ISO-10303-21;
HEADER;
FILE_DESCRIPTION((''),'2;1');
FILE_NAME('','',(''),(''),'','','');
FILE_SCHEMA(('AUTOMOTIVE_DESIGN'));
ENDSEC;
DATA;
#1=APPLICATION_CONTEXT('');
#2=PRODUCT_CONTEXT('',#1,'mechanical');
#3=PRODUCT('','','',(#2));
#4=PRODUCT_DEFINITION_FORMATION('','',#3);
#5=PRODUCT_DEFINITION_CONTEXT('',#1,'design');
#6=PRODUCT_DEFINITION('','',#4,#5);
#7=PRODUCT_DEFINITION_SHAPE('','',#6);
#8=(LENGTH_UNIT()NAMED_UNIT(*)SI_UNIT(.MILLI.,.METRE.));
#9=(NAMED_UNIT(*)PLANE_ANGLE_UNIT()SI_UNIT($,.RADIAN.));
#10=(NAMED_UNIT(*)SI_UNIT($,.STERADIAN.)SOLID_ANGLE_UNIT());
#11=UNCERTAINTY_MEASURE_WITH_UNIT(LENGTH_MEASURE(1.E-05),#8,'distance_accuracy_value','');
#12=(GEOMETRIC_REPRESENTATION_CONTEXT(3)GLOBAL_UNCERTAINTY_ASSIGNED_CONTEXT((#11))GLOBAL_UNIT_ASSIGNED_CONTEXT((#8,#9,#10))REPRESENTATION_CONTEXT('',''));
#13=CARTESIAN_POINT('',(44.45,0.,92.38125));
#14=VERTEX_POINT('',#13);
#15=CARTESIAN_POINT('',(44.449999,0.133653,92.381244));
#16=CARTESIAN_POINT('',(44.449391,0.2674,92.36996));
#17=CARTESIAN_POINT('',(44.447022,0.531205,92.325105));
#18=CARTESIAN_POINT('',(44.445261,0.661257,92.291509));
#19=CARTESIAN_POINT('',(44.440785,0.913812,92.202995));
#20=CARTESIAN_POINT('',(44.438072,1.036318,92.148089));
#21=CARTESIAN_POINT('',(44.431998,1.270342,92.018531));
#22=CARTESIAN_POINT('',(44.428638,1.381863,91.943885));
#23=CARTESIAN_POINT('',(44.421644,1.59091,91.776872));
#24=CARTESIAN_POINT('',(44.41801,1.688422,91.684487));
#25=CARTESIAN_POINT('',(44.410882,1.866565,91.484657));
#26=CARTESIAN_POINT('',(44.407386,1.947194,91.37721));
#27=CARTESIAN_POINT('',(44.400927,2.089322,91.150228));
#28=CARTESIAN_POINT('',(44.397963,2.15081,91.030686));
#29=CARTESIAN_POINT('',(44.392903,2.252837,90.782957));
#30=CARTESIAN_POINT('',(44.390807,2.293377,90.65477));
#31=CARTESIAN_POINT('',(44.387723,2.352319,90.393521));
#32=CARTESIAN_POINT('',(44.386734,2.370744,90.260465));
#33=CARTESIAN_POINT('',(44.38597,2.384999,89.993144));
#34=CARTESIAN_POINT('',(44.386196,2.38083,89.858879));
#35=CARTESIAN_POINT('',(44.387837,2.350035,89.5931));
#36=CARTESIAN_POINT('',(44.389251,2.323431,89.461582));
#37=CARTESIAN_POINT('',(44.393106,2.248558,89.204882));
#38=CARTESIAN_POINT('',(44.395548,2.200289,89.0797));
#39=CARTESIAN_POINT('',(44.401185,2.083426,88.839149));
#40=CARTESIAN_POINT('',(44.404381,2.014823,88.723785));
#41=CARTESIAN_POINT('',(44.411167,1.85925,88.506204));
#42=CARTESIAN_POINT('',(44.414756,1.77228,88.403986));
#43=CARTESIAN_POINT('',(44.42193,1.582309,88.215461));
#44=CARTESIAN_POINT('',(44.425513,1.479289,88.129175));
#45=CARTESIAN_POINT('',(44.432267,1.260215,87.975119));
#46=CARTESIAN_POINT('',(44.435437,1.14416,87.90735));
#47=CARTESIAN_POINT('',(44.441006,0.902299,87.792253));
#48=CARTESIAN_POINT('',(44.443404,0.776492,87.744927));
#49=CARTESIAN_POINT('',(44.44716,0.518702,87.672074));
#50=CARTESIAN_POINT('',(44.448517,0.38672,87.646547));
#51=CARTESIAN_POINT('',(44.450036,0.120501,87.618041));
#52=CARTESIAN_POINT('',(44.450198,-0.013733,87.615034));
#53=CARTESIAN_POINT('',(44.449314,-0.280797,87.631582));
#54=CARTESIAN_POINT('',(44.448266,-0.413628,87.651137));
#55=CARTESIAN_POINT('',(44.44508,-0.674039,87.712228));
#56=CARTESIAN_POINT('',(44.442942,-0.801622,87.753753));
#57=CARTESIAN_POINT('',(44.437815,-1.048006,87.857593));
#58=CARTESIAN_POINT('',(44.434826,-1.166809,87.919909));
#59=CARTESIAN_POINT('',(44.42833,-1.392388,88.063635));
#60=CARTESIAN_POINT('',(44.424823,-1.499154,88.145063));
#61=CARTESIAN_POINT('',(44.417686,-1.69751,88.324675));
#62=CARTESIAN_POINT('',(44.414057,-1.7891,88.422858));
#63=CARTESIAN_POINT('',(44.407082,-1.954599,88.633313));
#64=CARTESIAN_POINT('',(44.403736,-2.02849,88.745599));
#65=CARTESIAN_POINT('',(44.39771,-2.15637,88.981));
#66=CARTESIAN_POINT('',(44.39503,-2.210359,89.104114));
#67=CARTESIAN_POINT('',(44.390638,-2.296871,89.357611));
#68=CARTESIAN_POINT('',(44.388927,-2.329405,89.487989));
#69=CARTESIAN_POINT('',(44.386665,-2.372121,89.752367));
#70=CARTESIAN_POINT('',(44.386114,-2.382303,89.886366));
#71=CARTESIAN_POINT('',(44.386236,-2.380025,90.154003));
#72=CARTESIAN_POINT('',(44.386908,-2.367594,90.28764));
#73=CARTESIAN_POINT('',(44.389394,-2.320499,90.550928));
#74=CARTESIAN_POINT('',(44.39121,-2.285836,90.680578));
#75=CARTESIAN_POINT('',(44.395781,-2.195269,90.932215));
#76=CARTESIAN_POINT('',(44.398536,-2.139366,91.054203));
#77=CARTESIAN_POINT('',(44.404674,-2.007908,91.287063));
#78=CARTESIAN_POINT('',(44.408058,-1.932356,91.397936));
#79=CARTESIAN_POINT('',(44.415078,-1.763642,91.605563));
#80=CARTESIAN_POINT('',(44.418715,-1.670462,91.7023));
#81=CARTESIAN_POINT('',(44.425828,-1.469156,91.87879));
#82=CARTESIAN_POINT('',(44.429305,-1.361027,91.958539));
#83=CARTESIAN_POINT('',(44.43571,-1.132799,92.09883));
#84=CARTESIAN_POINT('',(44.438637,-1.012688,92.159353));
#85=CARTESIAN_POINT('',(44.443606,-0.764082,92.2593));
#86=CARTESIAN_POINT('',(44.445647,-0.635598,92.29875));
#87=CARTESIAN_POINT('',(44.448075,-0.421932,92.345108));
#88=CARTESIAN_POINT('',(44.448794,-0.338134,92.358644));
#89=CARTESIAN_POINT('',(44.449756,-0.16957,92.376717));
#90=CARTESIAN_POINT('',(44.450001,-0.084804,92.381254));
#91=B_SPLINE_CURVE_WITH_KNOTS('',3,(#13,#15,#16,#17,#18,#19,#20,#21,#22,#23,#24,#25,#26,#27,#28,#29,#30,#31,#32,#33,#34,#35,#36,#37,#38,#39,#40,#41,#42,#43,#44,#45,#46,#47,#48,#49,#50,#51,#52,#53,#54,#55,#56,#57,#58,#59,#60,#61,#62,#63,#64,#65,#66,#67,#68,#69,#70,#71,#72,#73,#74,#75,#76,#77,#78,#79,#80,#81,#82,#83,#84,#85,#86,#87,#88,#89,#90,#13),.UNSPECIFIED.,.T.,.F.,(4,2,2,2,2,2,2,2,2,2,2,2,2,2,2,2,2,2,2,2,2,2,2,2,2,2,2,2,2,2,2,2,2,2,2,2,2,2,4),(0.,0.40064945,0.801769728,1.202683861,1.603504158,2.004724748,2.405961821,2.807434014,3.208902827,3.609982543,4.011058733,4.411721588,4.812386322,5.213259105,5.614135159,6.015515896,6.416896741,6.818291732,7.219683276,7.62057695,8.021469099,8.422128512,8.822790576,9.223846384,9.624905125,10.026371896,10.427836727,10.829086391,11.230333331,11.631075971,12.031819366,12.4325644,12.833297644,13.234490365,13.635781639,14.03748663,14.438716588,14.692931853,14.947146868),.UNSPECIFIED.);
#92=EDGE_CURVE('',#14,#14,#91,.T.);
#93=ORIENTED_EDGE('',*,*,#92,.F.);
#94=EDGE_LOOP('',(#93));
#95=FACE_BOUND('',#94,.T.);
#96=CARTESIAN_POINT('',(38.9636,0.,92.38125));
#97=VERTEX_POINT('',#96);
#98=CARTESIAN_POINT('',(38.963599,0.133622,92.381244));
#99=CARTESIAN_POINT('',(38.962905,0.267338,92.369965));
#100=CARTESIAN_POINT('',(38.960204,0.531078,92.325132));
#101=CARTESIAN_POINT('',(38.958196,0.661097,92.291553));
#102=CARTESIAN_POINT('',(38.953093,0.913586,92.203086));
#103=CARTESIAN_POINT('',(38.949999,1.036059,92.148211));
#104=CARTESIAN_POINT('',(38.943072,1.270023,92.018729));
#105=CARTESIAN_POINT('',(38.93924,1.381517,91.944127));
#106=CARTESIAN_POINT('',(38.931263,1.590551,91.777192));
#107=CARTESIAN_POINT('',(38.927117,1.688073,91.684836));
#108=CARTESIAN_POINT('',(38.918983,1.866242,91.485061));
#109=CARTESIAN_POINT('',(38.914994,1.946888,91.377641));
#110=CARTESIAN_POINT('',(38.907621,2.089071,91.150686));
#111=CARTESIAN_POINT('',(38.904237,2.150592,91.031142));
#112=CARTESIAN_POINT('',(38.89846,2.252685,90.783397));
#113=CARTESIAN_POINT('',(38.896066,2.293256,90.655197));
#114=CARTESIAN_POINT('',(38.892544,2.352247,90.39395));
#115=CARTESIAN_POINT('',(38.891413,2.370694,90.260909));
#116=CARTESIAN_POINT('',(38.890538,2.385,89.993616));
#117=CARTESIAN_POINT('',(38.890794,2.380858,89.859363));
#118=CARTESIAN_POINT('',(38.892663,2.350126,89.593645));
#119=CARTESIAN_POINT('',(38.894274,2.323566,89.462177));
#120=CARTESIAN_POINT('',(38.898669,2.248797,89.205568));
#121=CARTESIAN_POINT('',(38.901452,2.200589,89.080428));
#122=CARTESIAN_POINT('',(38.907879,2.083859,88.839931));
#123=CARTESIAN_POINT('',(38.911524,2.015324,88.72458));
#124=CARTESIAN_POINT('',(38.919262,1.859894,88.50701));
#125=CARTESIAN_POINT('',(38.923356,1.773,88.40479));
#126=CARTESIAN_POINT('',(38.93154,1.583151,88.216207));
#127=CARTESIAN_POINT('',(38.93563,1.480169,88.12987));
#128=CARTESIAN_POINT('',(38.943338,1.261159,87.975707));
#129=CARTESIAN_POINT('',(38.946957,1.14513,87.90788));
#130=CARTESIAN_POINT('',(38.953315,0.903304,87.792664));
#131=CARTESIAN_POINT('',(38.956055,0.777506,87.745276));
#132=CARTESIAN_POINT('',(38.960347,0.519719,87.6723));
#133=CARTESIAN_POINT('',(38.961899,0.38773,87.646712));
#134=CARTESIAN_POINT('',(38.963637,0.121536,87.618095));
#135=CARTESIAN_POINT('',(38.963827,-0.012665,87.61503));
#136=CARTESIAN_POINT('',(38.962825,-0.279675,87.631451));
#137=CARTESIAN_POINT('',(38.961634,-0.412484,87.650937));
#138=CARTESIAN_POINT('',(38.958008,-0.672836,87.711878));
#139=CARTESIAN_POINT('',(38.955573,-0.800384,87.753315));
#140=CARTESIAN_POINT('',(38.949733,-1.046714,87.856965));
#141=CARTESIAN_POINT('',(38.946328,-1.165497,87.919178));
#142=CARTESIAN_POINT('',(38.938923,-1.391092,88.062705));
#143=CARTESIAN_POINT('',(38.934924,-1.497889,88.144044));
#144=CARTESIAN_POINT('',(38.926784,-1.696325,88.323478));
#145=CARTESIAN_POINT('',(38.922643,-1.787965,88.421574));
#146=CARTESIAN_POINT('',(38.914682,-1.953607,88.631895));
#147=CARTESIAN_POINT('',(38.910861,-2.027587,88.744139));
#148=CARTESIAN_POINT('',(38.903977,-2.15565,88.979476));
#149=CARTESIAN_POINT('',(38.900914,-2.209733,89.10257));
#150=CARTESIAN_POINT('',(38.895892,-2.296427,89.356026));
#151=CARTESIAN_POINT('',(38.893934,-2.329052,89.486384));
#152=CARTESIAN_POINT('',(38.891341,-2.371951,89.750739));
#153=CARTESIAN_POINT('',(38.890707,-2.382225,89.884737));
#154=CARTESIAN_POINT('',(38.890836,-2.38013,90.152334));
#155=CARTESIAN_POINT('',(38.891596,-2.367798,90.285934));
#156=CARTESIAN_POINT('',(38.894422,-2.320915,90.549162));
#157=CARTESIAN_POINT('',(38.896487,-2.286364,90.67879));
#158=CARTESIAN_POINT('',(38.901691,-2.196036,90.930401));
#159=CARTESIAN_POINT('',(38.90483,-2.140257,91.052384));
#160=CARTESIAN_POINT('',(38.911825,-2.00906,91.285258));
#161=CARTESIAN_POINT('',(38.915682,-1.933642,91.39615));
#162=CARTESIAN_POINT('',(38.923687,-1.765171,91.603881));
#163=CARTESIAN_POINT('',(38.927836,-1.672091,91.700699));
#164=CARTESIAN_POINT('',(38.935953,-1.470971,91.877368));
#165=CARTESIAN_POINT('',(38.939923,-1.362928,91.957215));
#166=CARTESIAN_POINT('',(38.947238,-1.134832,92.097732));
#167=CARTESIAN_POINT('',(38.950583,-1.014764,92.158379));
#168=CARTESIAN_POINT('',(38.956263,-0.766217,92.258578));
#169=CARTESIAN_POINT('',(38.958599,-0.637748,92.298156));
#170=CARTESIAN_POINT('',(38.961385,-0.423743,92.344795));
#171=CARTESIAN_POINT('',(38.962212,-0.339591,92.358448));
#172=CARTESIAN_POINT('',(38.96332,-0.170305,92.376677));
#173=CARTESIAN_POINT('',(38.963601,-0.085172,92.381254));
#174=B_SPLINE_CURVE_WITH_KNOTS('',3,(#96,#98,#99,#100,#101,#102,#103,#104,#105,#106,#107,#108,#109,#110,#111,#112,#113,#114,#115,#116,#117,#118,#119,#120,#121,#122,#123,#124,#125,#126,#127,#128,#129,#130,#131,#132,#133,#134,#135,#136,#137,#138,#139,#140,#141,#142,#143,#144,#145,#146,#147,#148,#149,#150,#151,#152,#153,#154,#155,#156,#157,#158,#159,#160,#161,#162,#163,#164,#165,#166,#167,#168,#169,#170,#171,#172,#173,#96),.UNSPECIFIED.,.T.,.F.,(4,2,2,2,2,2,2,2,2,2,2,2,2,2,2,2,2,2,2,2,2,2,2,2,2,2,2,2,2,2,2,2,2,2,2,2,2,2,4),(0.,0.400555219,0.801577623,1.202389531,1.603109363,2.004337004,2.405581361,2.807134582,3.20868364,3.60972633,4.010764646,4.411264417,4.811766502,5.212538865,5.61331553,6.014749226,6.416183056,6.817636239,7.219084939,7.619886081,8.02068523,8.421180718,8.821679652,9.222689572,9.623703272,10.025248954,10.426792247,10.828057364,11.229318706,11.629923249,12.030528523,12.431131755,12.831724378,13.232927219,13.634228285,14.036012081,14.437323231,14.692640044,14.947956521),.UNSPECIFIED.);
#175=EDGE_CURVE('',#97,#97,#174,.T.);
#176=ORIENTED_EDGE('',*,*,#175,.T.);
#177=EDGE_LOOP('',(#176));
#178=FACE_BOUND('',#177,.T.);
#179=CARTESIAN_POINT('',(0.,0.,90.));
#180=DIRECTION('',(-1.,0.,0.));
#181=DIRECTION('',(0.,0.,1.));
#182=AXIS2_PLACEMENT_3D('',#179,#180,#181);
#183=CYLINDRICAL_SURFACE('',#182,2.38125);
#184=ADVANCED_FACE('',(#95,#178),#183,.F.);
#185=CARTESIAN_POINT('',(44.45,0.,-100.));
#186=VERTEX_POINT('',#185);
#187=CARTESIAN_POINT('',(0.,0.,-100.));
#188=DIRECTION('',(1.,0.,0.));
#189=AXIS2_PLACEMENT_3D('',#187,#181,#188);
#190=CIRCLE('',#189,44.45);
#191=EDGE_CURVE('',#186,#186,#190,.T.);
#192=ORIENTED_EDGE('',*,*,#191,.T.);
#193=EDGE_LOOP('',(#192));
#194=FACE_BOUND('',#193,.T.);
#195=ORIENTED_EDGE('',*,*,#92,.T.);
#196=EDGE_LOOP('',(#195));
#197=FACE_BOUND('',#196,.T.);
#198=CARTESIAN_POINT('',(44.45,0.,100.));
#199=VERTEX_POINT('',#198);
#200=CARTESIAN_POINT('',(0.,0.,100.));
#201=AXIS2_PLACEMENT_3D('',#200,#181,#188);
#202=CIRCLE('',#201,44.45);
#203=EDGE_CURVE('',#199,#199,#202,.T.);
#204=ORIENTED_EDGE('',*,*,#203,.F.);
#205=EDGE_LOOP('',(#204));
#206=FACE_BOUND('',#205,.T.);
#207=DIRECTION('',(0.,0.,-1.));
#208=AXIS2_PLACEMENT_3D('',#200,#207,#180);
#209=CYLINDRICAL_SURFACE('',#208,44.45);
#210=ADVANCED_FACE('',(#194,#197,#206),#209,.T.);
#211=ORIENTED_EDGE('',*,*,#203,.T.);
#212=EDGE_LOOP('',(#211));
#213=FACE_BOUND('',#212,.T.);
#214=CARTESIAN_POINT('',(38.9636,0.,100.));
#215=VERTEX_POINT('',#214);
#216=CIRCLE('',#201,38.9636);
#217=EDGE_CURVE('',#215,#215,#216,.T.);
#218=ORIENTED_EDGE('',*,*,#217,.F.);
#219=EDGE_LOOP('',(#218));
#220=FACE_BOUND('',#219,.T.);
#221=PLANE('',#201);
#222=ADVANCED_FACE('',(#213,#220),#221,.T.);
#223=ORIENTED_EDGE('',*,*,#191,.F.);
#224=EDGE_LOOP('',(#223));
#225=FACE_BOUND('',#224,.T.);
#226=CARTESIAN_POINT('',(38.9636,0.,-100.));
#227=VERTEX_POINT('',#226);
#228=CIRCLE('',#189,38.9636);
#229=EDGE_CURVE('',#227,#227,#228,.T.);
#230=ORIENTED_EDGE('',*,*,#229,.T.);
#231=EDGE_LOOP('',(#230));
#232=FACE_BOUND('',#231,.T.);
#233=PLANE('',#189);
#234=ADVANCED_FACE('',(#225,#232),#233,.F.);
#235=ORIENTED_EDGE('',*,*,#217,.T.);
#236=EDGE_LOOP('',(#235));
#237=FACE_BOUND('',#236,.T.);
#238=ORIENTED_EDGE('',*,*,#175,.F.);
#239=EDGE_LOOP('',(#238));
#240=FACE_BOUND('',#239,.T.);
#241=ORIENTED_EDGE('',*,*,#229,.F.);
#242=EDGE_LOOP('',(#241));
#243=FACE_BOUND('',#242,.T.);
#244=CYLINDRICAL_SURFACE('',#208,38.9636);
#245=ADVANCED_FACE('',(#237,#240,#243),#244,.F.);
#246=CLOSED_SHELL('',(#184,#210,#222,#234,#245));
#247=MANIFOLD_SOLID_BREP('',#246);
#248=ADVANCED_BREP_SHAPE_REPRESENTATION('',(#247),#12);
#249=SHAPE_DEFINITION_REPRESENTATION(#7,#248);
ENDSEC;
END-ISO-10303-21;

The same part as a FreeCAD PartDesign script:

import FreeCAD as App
import Part
import Sketcher
from FreeCAD import Vector
Q = App.Units.Quantity

doc = App.newDocument("Part")
body = doc.addObject("PartDesign::Body", "Body")

# Sketch on XY plane
sketch1 = body.newObject("Sketcher::SketchObject", "Sketch")
sketch1.AttachmentSupport = (doc.getObject("XY_Plane"), [""])
sketch1.MapMode = "FlatFace"
sketch1.addGeometry(Part.Circle(Vector(0, 0, 0), Vector(0, 0, 1), 44.45), False)
sketch1.addGeometry(Part.Circle(Vector(0, 0, 0), Vector(0, 0, 1), 38.9636), False)
sketch1.addConstraint(Sketcher.Constraint("Coincident", 0, 3, -1, 1))
sketch1.addConstraint(Sketcher.Constraint("Coincident", 1, 3, -1, 1))
sketch1.addConstraint(Sketcher.Constraint("Diameter", 0, Q("3.5 in")))
sketch1.addConstraint(Sketcher.Constraint("Diameter", 1, Q("3.068 in")))
pad1 = body.newObject("PartDesign::Pad", "Pad")
pad1.Profile = sketch1
pad1.Length = 200
pad1.Midplane = True

# Sketch on XZ plane
sketch2 = body.newObject("Sketcher::SketchObject", "Sketch001")
sketch2.AttachmentSupport = (doc.getObject("XZ_Plane"), [""])
sketch2.MapMode = "FlatFace"
sketch2.addGeometry(Part.LineSegment(Vector(44.45, 90, 0), Vector(0, 90, 0)), False)
sketch2.addGeometry(Part.LineSegment(Vector(0, 90, 0), Vector(0, 92.38125, 0)), False)
sketch2.addGeometry(Part.LineSegment(Vector(0, 92.38125, 0), Vector(44.45, 92.38125, 0)), False)
sketch2.addGeometry(Part.LineSegment(Vector(44.45, 92.38125, 0), Vector(44.45, 90, 0)), False)
sketch2.addGeometry(Part.LineSegment(Vector(0, 90, 0), Vector(44.45, 90, 0)), True)  # axis
sketch2.addConstraint(Sketcher.Constraint("Coincident", 0, 2, 1, 1))
sketch2.addConstraint(Sketcher.Constraint("Coincident", 1, 2, 2, 1))
sketch2.addConstraint(Sketcher.Constraint("Coincident", 2, 2, 3, 1))
sketch2.addConstraint(Sketcher.Constraint("Coincident", 3, 2, 0, 1))
sketch2.addConstraint(Sketcher.Constraint("Horizontal", 0))
sketch2.addConstraint(Sketcher.Constraint("Vertical", 1))
sketch2.addConstraint(Sketcher.Constraint("Horizontal", 2))
sketch2.addConstraint(Sketcher.Constraint("Vertical", 3))
sketch2.addConstraint(Sketcher.Constraint("Horizontal", 4))
sketch2.addConstraint(Sketcher.Constraint("Coincident", 4, 1, 0, 2))
sketch2.addConstraint(Sketcher.Constraint("PointOnObject", 0, 2, -2))
sketch2.addConstraint(Sketcher.Constraint("Vertical", 2, 2, 4, 2))
sketch2.addConstraint(Sketcher.Constraint("DistanceX", 0, 2, 0, 1, Q("1.75 in")))
sketch2.addConstraint(Sketcher.Constraint("DistanceY", 1, 1, 1, 2, Q("0.09375 in")))
sketch2.addConstraint(Sketcher.Constraint("DistanceY", -1, 1, 0, 2, Q("90 mm")))
groove = body.newObject("PartDesign::Groove", "Groove")
groove.Profile = sketch2
groove.ReferenceAxis = (sketch2, ["Axis0"])
groove.Angle = 360

doc.recompute()
